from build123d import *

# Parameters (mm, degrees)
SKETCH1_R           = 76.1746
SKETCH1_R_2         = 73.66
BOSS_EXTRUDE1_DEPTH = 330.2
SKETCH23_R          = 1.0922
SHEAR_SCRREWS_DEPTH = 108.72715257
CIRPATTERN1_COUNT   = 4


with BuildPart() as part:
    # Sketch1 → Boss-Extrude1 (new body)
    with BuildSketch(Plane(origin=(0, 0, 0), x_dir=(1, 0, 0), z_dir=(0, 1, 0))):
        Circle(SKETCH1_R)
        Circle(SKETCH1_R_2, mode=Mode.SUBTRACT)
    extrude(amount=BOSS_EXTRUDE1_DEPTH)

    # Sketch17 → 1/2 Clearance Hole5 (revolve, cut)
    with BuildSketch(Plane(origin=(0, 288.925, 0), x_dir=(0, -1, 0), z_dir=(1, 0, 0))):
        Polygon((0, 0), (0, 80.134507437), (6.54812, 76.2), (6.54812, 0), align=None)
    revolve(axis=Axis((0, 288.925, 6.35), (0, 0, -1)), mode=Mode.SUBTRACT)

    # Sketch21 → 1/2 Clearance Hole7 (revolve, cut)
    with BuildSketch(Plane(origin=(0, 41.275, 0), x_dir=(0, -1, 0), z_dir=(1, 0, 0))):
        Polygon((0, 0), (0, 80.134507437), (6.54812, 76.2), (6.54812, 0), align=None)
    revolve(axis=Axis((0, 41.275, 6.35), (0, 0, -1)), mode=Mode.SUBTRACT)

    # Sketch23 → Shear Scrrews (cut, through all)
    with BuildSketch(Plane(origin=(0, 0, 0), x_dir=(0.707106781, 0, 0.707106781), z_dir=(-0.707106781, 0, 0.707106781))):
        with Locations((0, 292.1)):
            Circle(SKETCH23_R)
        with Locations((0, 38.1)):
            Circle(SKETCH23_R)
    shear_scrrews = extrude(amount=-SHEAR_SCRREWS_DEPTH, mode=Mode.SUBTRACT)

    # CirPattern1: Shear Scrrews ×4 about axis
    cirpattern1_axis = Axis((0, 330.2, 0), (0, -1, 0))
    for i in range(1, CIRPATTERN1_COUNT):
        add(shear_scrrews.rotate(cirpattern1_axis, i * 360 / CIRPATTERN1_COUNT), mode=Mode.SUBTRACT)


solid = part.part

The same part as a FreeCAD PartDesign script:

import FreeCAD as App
import Part
import Sketcher
from FreeCAD import Vector
Q = App.Units.Quantity

doc = App.newDocument("Part")
body = doc.addObject("PartDesign::Body", "Body")

# Sketch on XZ plane
sketch1 = doc.addObject("Sketcher::SketchObject", "Sketch")
body.addObject(sketch1)
sketch1.AttachmentSupport = (doc.XZ_Plane, [""])
sketch1.MapMode = "FlatFace"
sketch1.addGeometry([
    Part.Circle(Vector(0, 0, 0), Vector(0, 0, 1), 76.1746),
    Part.Circle(Vector(0, 0, 0), Vector(0, 0, 1), 73.66),
], False)
sketch1.addConstraint([
    Sketcher.Constraint("Coincident", 0, 3, -1, 1),
    Sketcher.Constraint("Coincident", 1, 3, -1, 1),
    Sketcher.Constraint("Diameter", 1, Q("5.8 in")),
    Sketcher.Constraint("Diameter", 0, Q("5.998 in")),
])
pad1 = doc.addObject("PartDesign::Pad", "Pad")
body.addObject(pad1)
pad1.Profile = sketch1
pad1.Length = Q("13 in")
pad1.Reversed = True

# Sketch on YZ plane
sketch2 = doc.addObject("Sketcher::SketchObject", "Sketch001")
body.addObject(sketch2)
sketch2.AttachmentSupport = (doc.YZ_Plane, [""])
sketch2.MapMode = "FlatFace"
sketch2.addGeometry([
    Part.LineSegment(Vector(288.925, -80.134507, 0), Vector(288.925, 0, 0)),
    Part.LineSegment(Vector(288.925, 0, 0), Vector(282.37688, 0, 0)),
    Part.LineSegment(Vector(282.37688, 0, 0), Vector(282.37688, -76.2, 0)),
    Part.LineSegment(Vector(282.37688, -76.2, 0), Vector(288.925, -80.134507, 0)),
], False)
sketch2.addGeometry(Part.LineSegment(Vector(288.925, 0, 0), Vector(288.925, -80.134507, 0)), True)  # axis
sketch2.addConstraint([
    Sketcher.Constraint("Coincident", 0, 2, 1, 1),
    Sketcher.Constraint("Coincident", 1, 2, 2, 1),
    Sketcher.Constraint("Coincident", 2, 2, 3, 1),
    Sketcher.Constraint("Coincident", 3, 2, 0, 1),
    Sketcher.Constraint("Vertical", 0),
    Sketcher.Constraint("Horizontal", 1),
    Sketcher.Constraint("Vertical", 2),
    Sketcher.Constraint("Vertical", 4),
    Sketcher.Constraint("Coincident", 4, 1, 0, 2),
    Sketcher.Constraint("PointOnObject", 0, 2, -1),
    Sketcher.Constraint("Equal", 0, 4),
    Sketcher.Constraint("DistanceY", 2, 2, 2, 1, Q("3 in")),
    Sketcher.Constraint("Angle", 3, Q("-31 deg")),
    Sketcher.Constraint("DistanceX", 1, 2, 1, 1, Q("0.2578 in")),
    Sketcher.Constraint("DistanceX", -1, 1, 0, 2, Q("11.375 in")),
])
groove = doc.addObject("PartDesign::Groove", "Groove")
body.addObject(groove)
groove.Profile = sketch2
groove.ReferenceAxis = (sketch2, ["Axis0"])
groove.Angle = 360

# Sketch on YZ plane
sketch3 = doc.addObject("Sketcher::SketchObject", "Sketch002")
body.addObject(sketch3)
sketch3.AttachmentSupport = (doc.YZ_Plane, [""])
sketch3.MapMode = "FlatFace"
sketch3.addGeometry([
    Part.LineSegment(Vector(41.275, -80.134507, 0), Vector(41.275, 0, 0)),
    Part.LineSegment(Vector(41.275, 0, 0), Vector(34.72688, 0, 0)),
    Part.LineSegment(Vector(34.72688, 0, 0), Vector(34.72688, -76.2, 0)),
    Part.LineSegment(Vector(34.72688, -76.2, 0), Vector(41.275, -80.134507, 0)),
], False)
sketch3.addGeometry(Part.LineSegment(Vector(41.275, 0, 0), Vector(41.275, -80.134507, 0)), True)  # axis
sketch3.addConstraint([
    Sketcher.Constraint("Coincident", 0, 2, 1, 1),
    Sketcher.Constraint("Coincident", 1, 2, 2, 1),
    Sketcher.Constraint("Coincident", 2, 2, 3, 1),
    Sketcher.Constraint("Coincident", 3, 2, 0, 1),
    Sketcher.Constraint("Vertical", 0),
    Sketcher.Constraint("Horizontal", 1),
    Sketcher.Constraint("Vertical", 2),
    Sketcher.Constraint("Vertical", 4),
    Sketcher.Constraint("Coincident", 4, 1, 0, 2),
    Sketcher.Constraint("PointOnObject", 0, 2, -1),
    Sketcher.Constraint("Equal", 0, 4),
    Sketcher.Constraint("DistanceY", 2, 2, 2, 1, Q("3 in")),
    Sketcher.Constraint("Angle", 3, Q("-31 deg")),
    Sketcher.Constraint("DistanceX", 1, 2, 1, 1, Q("0.2578 in")),
    Sketcher.Constraint("DistanceX", -1, 1, 0, 2, Q("1.625 in")),
])
groove2 = doc.addObject("PartDesign::Groove", "Groove001")
body.addObject(groove2)
groove2.Profile = sketch3
groove2.ReferenceAxis = (sketch3, ["Axis0"])
groove2.Angle = 360

# Sketch on an angled plane
sketch4 = doc.addObject("Sketcher::SketchObject", "Sketch003")
body.addObject(sketch4)
sketch4.Placement = App.Placement(Vector(0, 0, 0), App.Rotation(Vector(0.707106781, 0, 0.707106781), Vector(0, 0.999999999, 0), Vector(-0.707106781, 0, 0.707106781), "ZXY"))
sketch4.addGeometry([
    Part.Circle(Vector(0, 292.1, 0), Vector(0, 0, 1), 1.0922),
    Part.Circle(Vector(0, 38.1, 0), Vector(0, 0, 1), 1.0922),
], False)
sketch4.addConstraint([
    Sketcher.Constraint("Equal", 0, 1),
    Sketcher.Constraint("PointOnObject", 0, 3, -2),
    Sketcher.Constraint("PointOnObject", 1, 3, -2),
    Sketcher.Constraint("Diameter", 0, Q("0.086 in")),
    Sketcher.Constraint("DistanceY", 1, 3, 0, 3, Q("10 in")),
    Sketcher.Constraint("DistanceY", -1, 1, 0, 3, Q("11.5 in")),
])
pocket1 = doc.addObject("PartDesign::Pocket", "Pocket")
body.addObject(pocket1)
pocket1.Profile = sketch4
pocket1.Type = "ThroughAll"
doc.recompute()

polarpattern = doc.addObject("PartDesign::PolarPattern", "PolarPattern")
body.addObject(polarpattern)
polarpattern.Originals = [pocket1]
polarpattern.Axis = (doc.Y_Axis, [""])
polarpattern.Angle = 360
polarpattern.Occurrences = 4
body.Tip = polarpattern

doc.recompute()
